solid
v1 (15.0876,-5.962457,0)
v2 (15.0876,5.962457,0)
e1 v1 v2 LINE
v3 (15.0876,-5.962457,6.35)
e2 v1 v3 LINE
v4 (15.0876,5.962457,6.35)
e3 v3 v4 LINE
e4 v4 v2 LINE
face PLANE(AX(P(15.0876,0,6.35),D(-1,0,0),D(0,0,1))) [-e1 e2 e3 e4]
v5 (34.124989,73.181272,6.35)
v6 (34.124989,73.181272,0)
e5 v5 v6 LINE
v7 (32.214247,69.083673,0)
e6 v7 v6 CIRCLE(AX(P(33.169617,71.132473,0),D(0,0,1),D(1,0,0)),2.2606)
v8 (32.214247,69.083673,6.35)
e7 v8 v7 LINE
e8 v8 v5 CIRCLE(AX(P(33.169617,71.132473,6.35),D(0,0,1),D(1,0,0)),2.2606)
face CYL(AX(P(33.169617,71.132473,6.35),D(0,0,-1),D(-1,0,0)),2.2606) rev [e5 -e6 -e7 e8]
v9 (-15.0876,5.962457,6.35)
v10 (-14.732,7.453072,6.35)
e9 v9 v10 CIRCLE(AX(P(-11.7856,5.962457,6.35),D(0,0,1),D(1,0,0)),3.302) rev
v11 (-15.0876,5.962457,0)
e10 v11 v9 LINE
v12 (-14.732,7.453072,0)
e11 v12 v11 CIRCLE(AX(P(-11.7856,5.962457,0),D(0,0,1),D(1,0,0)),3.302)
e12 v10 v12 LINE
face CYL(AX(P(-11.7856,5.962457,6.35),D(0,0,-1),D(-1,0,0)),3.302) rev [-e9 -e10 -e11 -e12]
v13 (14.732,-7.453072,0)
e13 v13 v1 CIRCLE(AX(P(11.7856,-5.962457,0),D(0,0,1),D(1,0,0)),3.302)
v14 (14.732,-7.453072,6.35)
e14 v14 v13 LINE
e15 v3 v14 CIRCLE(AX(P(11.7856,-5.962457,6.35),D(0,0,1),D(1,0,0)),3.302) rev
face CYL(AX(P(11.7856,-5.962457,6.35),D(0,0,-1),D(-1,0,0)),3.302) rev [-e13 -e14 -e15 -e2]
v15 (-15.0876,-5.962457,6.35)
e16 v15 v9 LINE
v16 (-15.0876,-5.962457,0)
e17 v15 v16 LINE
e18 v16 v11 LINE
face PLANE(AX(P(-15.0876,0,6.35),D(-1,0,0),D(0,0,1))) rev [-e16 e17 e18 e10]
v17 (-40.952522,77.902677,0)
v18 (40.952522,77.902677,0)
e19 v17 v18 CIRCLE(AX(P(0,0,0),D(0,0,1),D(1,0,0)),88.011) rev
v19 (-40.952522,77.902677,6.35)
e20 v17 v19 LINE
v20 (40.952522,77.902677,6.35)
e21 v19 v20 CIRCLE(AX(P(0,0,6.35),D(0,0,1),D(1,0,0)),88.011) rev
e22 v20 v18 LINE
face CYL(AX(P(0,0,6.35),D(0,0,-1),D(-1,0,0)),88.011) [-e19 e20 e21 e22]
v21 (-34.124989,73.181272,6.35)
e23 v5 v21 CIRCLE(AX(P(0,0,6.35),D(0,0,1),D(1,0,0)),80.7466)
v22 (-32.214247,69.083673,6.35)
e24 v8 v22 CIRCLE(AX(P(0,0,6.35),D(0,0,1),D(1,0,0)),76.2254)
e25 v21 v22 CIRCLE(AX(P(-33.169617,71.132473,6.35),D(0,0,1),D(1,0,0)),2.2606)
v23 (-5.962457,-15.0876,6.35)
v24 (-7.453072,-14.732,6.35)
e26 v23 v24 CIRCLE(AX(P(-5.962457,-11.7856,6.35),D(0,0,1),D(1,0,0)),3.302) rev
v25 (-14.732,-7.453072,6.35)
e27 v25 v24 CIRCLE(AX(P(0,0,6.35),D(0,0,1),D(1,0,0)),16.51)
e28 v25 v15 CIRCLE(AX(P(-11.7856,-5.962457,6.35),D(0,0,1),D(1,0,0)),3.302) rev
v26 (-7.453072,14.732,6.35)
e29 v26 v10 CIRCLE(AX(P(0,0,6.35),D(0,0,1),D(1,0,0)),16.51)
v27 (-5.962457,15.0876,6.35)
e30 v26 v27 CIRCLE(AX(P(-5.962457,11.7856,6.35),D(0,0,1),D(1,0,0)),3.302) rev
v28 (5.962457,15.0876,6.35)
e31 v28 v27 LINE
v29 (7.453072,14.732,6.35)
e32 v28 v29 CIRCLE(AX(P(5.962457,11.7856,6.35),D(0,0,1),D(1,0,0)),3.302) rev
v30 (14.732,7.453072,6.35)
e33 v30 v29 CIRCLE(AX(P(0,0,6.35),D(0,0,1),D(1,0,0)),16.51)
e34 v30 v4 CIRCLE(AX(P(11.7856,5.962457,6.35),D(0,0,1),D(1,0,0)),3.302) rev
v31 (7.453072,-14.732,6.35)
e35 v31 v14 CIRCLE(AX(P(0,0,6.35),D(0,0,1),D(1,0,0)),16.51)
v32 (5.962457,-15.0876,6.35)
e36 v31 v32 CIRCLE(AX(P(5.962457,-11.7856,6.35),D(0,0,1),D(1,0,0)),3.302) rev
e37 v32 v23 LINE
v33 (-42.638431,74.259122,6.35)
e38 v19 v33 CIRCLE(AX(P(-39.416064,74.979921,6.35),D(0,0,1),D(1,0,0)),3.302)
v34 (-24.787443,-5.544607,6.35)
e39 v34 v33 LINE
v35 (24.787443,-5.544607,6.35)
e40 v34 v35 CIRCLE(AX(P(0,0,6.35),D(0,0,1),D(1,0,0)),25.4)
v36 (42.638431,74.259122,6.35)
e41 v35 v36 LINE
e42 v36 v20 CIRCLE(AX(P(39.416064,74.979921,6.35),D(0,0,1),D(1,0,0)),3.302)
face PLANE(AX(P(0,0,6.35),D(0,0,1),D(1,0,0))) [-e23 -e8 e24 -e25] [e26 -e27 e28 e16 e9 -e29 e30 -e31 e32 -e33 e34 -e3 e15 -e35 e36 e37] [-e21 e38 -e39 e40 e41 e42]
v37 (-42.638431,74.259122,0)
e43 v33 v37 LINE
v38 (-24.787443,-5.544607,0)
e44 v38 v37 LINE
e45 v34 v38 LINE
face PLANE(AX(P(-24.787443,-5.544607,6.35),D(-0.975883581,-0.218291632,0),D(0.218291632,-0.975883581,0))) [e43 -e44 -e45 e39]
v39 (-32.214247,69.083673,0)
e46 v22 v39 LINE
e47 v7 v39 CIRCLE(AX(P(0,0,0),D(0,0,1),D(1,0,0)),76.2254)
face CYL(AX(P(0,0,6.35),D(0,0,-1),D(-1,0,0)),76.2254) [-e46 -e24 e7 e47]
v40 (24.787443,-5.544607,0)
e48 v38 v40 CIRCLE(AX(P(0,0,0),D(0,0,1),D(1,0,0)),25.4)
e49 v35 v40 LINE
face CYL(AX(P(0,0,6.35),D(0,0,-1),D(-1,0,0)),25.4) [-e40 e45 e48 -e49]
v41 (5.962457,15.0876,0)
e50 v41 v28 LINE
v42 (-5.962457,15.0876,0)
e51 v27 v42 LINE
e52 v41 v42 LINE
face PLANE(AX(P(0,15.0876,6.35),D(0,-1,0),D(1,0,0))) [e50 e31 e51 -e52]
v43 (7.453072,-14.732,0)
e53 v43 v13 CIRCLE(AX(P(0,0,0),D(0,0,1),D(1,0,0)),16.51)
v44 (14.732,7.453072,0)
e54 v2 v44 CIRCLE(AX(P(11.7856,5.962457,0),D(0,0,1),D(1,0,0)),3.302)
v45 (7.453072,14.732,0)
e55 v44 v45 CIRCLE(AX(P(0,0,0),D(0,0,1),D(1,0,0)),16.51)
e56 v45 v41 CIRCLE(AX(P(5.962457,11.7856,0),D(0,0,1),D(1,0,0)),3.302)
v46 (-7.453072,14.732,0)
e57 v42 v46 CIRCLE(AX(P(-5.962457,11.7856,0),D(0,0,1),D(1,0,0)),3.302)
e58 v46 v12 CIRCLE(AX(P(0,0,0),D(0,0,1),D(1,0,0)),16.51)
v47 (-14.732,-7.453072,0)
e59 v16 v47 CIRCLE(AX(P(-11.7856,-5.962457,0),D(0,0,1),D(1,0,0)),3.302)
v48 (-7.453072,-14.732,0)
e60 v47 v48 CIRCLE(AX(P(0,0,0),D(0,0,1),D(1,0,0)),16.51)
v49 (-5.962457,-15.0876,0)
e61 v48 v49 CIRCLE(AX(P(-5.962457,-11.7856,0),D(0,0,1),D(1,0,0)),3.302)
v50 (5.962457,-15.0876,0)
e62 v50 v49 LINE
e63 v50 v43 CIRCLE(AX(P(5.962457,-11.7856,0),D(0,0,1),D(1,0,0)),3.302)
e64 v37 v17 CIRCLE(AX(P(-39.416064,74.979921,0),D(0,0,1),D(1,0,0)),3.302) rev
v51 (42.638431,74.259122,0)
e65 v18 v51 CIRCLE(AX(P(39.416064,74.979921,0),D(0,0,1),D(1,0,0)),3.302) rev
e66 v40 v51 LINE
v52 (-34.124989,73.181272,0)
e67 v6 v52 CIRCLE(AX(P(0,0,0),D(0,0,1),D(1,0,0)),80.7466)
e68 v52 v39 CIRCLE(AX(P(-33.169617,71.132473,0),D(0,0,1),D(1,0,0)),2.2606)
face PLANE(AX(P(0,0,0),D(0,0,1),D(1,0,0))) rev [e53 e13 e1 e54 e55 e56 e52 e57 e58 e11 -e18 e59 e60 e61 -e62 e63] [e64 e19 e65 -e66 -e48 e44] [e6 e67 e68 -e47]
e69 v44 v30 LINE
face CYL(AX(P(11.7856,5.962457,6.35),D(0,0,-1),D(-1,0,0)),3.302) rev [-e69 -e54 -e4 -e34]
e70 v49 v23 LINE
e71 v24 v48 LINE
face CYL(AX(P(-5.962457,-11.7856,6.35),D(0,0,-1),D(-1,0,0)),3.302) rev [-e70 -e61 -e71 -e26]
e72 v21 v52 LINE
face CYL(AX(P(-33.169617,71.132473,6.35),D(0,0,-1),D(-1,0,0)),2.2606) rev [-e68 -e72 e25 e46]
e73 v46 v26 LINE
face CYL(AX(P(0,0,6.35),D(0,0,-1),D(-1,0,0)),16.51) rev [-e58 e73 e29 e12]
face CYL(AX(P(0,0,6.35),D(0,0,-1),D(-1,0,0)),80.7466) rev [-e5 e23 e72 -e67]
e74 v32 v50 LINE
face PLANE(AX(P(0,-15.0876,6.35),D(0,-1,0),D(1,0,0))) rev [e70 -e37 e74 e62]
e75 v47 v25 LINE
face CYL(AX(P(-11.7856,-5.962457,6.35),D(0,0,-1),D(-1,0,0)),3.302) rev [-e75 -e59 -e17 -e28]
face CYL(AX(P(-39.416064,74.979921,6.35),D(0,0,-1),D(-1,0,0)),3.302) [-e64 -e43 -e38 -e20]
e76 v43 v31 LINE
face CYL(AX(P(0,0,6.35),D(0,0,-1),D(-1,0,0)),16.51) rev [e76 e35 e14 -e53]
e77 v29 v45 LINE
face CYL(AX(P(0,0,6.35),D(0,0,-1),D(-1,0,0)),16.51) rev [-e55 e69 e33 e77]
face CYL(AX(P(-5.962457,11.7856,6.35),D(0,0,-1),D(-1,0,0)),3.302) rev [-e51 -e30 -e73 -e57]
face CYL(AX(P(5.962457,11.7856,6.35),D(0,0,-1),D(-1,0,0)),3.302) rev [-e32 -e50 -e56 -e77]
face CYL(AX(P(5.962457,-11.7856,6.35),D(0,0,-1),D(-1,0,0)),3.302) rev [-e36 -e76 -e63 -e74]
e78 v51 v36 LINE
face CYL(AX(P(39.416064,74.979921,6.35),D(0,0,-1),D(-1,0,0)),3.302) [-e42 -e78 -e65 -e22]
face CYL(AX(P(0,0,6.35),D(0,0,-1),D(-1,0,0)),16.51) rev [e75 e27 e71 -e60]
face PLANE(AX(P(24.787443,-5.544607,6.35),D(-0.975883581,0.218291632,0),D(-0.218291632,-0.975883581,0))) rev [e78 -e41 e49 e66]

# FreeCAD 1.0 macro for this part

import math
import FreeCAD as App
import Part
import Sketcher
from FreeCAD import Vector
Q = App.Units.Quantity


def edges_at(feature, points):
    """Names of the edges that pass closest to the given points."""
    edges = feature.Shape.Edges
    near = lambda p: min(range(len(edges)), key=lambda i: edges[i].distToShape(Part.Vertex(*p))[0])
    return sorted({f"Edge{near(p) + 1}" for p in points})

doc = App.newDocument("Part")
body = doc.addObject("PartDesign::Body", "Body")

# Sketch on XY plane
sketch1 = body.newObject("Sketcher::SketchObject", "Sketch")
sketch1.AttachmentSupport = (doc.getObject("XY_Plane"), [""])
sketch1.MapMode = "FlatFace"
sketch1.addGeometry(Part.LineSegment(Vector(-43.182028, 76.689299, 0), Vector(-24.787443, -5.544607, 0)), False)
sketch1.addGeometry(Part.ArcOfCircle(Part.Circle(Vector(0, 0, 0), Vector(0, 0, 1), 25.4), math.radians(-167.391288), math.radians(-12.608712)), False)
sketch1.addGeometry(Part.LineSegment(Vector(24.787443, -5.544607, 0), Vector(43.182028, 76.689299, 0)), False)
sketch1.addGeometry(Part.ArcOfCircle(Part.Circle(Vector(0, 0, 0), Vector(0, 0, 1), 88.011), math.radians(60.617112), math.radians(119.382888)), False)
sketch1.addGeometry(Part.ArcOfCircle(Part.Circle(Vector(0, 0, 0), Vector(0, 0, 1), 16.51), math.radians(113.957607), math.radians(156.042393)), False)
sketch1.addGeometry(Part.LineSegment(Vector(-6.70406, 15.0876, 0), Vector(6.70406, 15.0876, 0)), False)
sketch1.addGeometry(Part.ArcOfCircle(Part.Circle(Vector(0, 0, 0), Vector(0, 0, 1), 16.51), math.radians(23.957607), math.radians(66.042393)), False)
sketch1.addGeometry(Part.LineSegment(Vector(15.0876, 6.70406, 0), Vector(15.0876, -6.70406, 0)), False)
sketch1.addGeometry(Part.ArcOfCircle(Part.Circle(Vector(0, 0, 0), Vector(0, 0, 1), 16.51), math.radians(-66.042393), math.radians(-23.957607)), False)
sketch1.addGeometry(Part.LineSegment(Vector(6.70406, -15.0876, 0), Vector(-6.70406, -15.0876, 0)), False)
sketch1.addGeometry(Part.ArcOfCircle(Part.Circle(Vector(0, 0, 0), Vector(0, 0, 1), 16.51), math.radians(-156.042393), math.radians(-113.957607)), False)
sketch1.addGeometry(Part.LineSegment(Vector(-15.0876, -6.70406, 0), Vector(-15.0876, 6.70406, 0)), False)
sketch1.addGeometry(Part.ArcOfCircle(Part.Circle(Vector(-33.169617, 71.132473, 0), Vector(0, 0, 1), 2.2606), math.radians(115.00003), math.radians(294.999971)), False)
sketch1.addGeometry(Part.ArcOfCircle(Part.Circle(Vector(0, 0, 0), Vector(0, 0, 1), 80.7466), math.radians(64.999999), math.radians(115.000001)), False)
sketch1.addGeometry(Part.ArcOfCircle(Part.Circle(Vector(33.169617, 71.132473, 0), Vector(0, 0, 1), 2.2606), math.radians(-114.999971), math.radians(64.99997)), False)
sketch1.addGeometry(Part.ArcOfCircle(Part.Circle(Vector(0, 0, 0), Vector(0, 0, 1), 76.2254), math.radians(64.999999), math.radians(115.000001)), False)
sketch1.addConstraint(Sketcher.Constraint("Tangent", 0, 2, 1, 1))
sketch1.addConstraint(Sketcher.Constraint("Tangent", 1, 2, 2, 1))
sketch1.addConstraint(Sketcher.Constraint("Coincident", 2, 2, 3, 1))
sketch1.addConstraint(Sketcher.Constraint("Coincident", 3, 2, 0, 1))
sketch1.addConstraint(Sketcher.Constraint("Coincident", 4, 1, 5, 1))
sketch1.addConstraint(Sketcher.Constraint("Coincident", 5, 2, 6, 2))
sketch1.addConstraint(Sketcher.Constraint("Coincident", 6, 1, 7, 1))
sketch1.addConstraint(Sketcher.Constraint("Coincident", 7, 2, 8, 2))
sketch1.addConstraint(Sketcher.Constraint("Coincident", 8, 1, 9, 1))
sketch1.addConstraint(Sketcher.Constraint("Coincident", 9, 2, 10, 2))
sketch1.addConstraint(Sketcher.Constraint("Coincident", 10, 1, 11, 1))
sketch1.addConstraint(Sketcher.Constraint("Coincident", 11, 2, 4, 2))
sketch1.addConstraint(Sketcher.Constraint("Tangent", 12, 1, 13, 2))
sketch1.addConstraint(Sketcher.Constraint("Tangent", 13, 1, 14, 2))
sketch1.addConstraint(Sketcher.Constraint("Tangent", 14, 1, 15, 1))
sketch1.addConstraint(Sketcher.Constraint("Tangent", 15, 2, 12, 2))
sketch1.addConstraint(Sketcher.Constraint("Horizontal", 5))
sketch1.addConstraint(Sketcher.Constraint("Vertical", 7))
sketch1.addConstraint(Sketcher.Constraint("Horizontal", 9))
sketch1.addConstraint(Sketcher.Constraint("Vertical", 11))
sketch1.addConstraint(Sketcher.Constraint("Coincident", 1, 3, -1, 1))
sketch1.addConstraint(Sketcher.Constraint("Coincident", 3, 3, -1, 1))
sketch1.addConstraint(Sketcher.Constraint("Coincident", 4, 3, -1, 1))
sketch1.addConstraint(Sketcher.Constraint("Coincident", 6, 3, -1, 1))
sketch1.addConstraint(Sketcher.Constraint("Coincident", 8, 3, -1, 1))
sketch1.addConstraint(Sketcher.Constraint("Coincident", 10, 3, -1, 1))
sketch1.addConstraint(Sketcher.Constraint("Coincident", 13, 3, -1, 1))
sketch1.addConstraint(Sketcher.Constraint("Coincident", 15, 3, -1, 1))
sketch1.addConstraint(Sketcher.Constraint("Equal", 4, 6))
sketch1.addConstraint(Sketcher.Constraint("Equal", 6, 8))
sketch1.addConstraint(Sketcher.Constraint("Equal", 8, 10))
sketch1.addConstraint(Sketcher.Constraint("Horizontal", 12, 3, 14, 3))
sketch1.addConstraint(Sketcher.Constraint("Horizontal", 0, 2, 1, 2))
sketch1.addConstraint(Sketcher.Constraint("Horizontal", 7, 2, 10, 1))
sketch1.addConstraint(Sketcher.Constraint("Vertical", 5, 2, 8, 1))
sketch1.addConstraint(Sketcher.Constraint("Equal", 9, 7))
sketch1.addConstraint(Sketcher.Constraint("Radius", 1, Q("1 in")))
sketch1.addConstraint(Sketcher.Constraint("Radius", 4, Q("0.65 in")))
sketch1.addConstraint(Sketcher.Constraint("Radius", 3, Q("3.465 in")))
sketch1.addConstraint(Sketcher.Constraint("Radius", 12, Q("0.089 in")))
sketch1.addConstraint(Sketcher.Constraint("Radius", 13, Q("3.179 in")))
sketch1.addConstraint(Sketcher.Constraint("DistanceY", -1, 1, 4, 1, Q("0.594 in")))
sketch1.addConstraint(Sketcher.Constraint("DistanceY", -1, 1, 2, 2, 76.689299))
sketch1.addConstraint(Sketcher.Constraint("DistanceY", 12, 3, 12, 1, 2.048799))
pad1 = body.newObject("PartDesign::Pad", "Pad")
pad1.Profile = sketch1
pad1.Length = Q("0.25 in")
doc.recompute()

fillet = body.newObject("PartDesign::Fillet", "Fillet")
fillet.Base = (pad1, edges_at(pad1, [
    (-15.088, 6.704, 3.175),
    (-15.088, -6.704, 3.175),
    (-6.704, -15.088, 3.175),
    (6.704, -15.088, 3.175),
    (15.088, -6.704, 3.175),
    (15.088, 6.704, 3.175),
    (6.704, 15.088, 3.175),
    (-6.704, 15.088, 3.175),
]))
fillet.Radius = Q("0.13 in")
doc.recompute()

fillet2 = body.newObject("PartDesign::Fillet", "Fillet001")
fillet2.Base = (fillet, edges_at(fillet, [(43.182, 76.689, 3.175), (-43.182, 76.689, 3.175)]))
fillet2.Radius = Q("0.13 in")

doc.recompute()
